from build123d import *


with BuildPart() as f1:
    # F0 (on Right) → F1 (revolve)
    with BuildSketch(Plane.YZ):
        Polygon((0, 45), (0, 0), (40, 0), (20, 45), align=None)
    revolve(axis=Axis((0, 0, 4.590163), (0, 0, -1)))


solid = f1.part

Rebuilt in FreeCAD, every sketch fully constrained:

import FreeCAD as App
import Part
import Sketcher


def add_polygon(sketch, points):
    """Adds a closed chain of lines whose ends are joined by coincident constraints."""
    first, n = sketch.GeometryCount, len(points)
    for a, b in zip(points, points[1:] + points[:1]):
        sketch.addGeometry(Part.LineSegment(App.Vector(*a, 0), App.Vector(*b, 0)), False)
    for i in range(n):
        sketch.addConstraint(Sketcher.Constraint("Coincident", first + i, 2, first + (i + 1) % n, 1))

doc = App.newDocument("Part")
body = doc.addObject("PartDesign::Body", "Body")

sketch1 = body.newObject("Sketcher::SketchObject", "Sketch")
sketch1.AttachmentSupport = (doc.getObject("YZ_Plane"), [""])
sketch1.MapMode = "FlatFace"
add_polygon(sketch1, [(0, 45), (0, 0), (40, 0), (20, 45)])
sketch1.addConstraint(Sketcher.Constraint("Vertical", 0))
sketch1.addConstraint(Sketcher.Constraint("Horizontal", 1))
sketch1.addConstraint(Sketcher.Constraint("Horizontal", 3))
sketch1.addConstraint(Sketcher.Constraint("Coincident", 0, 2, -1, 1))
sketch1.addConstraint(Sketcher.Constraint("DistanceX", 1, 1, 1, 2, 40.0))
sketch1.addConstraint(Sketcher.Constraint("DistanceX", 3, 2, 3, 1, 20.0))
sketch1.addConstraint(Sketcher.Constraint("DistanceY", 0, 2, 0, 1, 45.0))
revolution = body.newObject("PartDesign::Revolution", "Revolution")
revolution.Profile = sketch1
revolution.ReferenceAxis = (sketch1, ["V_Axis"])
revolution.Angle = 360

doc.recompute()
